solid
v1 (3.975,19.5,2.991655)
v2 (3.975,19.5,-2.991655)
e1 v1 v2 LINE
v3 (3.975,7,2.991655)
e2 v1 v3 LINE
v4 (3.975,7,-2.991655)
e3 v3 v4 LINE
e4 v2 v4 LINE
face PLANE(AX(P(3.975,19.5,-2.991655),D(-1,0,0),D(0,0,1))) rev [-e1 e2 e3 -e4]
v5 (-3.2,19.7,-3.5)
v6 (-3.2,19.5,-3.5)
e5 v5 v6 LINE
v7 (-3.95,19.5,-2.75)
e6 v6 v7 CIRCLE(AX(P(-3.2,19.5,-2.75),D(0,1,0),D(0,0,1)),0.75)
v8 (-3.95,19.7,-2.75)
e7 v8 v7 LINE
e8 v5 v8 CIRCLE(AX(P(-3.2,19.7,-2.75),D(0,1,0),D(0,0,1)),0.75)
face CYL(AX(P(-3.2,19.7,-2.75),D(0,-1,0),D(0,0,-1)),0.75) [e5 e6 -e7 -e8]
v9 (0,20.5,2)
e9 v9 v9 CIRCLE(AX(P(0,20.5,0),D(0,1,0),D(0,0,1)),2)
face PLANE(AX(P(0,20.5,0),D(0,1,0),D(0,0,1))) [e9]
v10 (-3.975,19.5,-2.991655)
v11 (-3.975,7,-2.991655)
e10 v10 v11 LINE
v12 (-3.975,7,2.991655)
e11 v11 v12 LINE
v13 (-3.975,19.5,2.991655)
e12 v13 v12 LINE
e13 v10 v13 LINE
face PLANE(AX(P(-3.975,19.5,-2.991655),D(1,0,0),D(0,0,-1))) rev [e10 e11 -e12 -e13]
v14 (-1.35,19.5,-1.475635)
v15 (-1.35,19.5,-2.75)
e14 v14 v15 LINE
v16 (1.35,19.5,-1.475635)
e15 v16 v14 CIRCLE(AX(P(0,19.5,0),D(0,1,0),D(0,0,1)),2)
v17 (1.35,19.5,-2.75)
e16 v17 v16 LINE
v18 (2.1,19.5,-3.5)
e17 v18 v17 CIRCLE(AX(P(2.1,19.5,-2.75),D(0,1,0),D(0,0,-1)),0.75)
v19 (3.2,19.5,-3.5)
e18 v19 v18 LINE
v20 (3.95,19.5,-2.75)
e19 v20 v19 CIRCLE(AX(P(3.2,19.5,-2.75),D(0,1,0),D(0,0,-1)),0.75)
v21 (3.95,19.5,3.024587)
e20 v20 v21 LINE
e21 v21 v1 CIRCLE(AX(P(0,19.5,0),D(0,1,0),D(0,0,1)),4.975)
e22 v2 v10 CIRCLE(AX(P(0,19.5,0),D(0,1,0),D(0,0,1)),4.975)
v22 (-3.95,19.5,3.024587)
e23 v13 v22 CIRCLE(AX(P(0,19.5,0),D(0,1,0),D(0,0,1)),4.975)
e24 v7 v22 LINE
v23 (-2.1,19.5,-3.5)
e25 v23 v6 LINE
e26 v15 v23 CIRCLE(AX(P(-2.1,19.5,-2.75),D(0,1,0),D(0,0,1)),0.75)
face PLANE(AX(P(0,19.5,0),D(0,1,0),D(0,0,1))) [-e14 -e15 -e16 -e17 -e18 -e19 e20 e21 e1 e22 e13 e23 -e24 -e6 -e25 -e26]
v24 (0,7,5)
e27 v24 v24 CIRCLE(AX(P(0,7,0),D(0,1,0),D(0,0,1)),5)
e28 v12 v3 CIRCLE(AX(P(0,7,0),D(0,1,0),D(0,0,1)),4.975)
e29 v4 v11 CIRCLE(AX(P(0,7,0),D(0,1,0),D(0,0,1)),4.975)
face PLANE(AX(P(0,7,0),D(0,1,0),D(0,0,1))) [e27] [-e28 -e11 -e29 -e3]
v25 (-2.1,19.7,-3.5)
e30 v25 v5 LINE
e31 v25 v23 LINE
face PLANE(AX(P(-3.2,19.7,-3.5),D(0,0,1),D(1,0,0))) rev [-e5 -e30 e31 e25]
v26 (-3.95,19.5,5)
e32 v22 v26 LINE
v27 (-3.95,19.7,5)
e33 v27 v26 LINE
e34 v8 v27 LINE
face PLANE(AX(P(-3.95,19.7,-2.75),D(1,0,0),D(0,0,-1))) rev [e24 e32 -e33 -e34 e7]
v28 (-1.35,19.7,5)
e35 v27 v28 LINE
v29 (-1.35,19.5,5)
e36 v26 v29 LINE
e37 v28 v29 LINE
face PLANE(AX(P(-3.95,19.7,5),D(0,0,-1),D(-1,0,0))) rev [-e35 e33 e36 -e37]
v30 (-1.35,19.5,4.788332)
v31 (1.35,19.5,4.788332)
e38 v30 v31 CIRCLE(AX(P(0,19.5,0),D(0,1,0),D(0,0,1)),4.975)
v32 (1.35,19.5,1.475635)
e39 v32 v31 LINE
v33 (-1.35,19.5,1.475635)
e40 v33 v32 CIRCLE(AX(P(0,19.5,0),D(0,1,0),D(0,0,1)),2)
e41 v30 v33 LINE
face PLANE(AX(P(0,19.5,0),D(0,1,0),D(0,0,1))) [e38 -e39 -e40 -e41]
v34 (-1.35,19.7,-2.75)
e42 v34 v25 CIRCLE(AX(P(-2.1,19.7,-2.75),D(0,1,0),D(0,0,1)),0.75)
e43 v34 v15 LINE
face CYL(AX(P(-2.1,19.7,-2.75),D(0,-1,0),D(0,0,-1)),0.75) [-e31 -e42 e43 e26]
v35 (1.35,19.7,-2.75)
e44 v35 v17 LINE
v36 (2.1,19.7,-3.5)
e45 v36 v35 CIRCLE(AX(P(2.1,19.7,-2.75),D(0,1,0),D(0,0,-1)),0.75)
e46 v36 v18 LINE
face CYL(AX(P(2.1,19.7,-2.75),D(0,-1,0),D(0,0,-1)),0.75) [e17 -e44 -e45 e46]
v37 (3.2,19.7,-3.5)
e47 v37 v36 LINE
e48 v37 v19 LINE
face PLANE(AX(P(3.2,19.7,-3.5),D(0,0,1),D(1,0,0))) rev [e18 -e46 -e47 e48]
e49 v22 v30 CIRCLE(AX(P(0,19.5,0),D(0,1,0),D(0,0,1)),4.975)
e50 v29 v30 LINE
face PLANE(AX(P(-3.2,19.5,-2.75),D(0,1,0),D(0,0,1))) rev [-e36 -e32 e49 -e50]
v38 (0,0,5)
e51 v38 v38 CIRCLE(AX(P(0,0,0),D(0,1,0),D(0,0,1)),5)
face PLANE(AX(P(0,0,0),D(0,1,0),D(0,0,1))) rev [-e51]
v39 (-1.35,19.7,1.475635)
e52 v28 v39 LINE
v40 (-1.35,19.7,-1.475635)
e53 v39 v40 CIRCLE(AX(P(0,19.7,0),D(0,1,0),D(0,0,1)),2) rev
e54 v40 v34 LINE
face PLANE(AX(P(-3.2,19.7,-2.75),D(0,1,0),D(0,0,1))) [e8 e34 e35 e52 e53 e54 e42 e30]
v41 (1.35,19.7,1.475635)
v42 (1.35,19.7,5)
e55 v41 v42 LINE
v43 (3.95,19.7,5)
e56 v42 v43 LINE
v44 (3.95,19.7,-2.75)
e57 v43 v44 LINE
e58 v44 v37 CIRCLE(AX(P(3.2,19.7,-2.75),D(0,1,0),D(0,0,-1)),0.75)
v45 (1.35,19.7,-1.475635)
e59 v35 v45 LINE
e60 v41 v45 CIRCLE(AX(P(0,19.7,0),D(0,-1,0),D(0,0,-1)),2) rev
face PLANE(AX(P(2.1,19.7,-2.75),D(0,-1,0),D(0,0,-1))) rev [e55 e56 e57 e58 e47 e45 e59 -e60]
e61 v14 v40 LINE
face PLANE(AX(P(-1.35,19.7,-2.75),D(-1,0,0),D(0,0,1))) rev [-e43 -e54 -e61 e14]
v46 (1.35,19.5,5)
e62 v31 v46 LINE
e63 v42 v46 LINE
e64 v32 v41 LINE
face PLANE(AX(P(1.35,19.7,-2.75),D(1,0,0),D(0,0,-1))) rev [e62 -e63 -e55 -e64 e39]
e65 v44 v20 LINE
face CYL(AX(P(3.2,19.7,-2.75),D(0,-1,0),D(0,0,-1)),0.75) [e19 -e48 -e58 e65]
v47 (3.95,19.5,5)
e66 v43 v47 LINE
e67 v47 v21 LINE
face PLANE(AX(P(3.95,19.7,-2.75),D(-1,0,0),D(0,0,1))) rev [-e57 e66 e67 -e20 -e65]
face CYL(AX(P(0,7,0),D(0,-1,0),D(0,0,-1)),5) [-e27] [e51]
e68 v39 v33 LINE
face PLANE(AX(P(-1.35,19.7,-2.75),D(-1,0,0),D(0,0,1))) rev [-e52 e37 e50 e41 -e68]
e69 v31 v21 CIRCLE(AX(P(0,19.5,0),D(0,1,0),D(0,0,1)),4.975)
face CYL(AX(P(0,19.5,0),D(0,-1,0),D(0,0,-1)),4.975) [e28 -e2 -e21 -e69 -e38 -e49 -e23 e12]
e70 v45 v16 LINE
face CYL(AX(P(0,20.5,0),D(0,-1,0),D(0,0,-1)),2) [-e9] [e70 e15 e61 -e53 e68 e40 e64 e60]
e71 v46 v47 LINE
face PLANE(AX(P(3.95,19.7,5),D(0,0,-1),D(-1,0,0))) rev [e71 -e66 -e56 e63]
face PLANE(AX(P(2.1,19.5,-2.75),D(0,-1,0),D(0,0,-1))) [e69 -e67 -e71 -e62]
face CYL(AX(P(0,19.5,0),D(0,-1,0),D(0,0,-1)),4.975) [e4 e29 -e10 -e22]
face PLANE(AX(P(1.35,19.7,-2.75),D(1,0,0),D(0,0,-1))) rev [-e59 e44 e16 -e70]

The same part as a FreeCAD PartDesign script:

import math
import FreeCAD as App
import Part
import Sketcher
from FreeCAD import Vector

doc = App.newDocument("Part")
body = doc.addObject("PartDesign::Body", "Body")

# Sketch on XZ plane
sketch1 = doc.addObject("Sketcher::SketchObject", "Sketch")
body.addObject(sketch1)
sketch1.AttachmentSupport = (doc.XZ_Plane, [""])
sketch1.MapMode = "FlatFace"
sketch1.addGeometry(Part.Circle(Vector(0, 0, 0), Vector(0, 0, 1), 5), False)
sketch1.addConstraint(Sketcher.Constraint("Coincident", 0, 3, -1, 1))
sketch1.addConstraint(Sketcher.Constraint("Diameter", 0, 10.0))
pad1 = doc.addObject("PartDesign::Pad", "Pad")
body.addObject(pad1)
pad1.Profile = sketch1
pad1.Length = 7
pad1.Reversed = True

# Sketch on XZ plane
sketch2 = doc.addObject("Sketcher::SketchObject", "Sketch001")
body.addObject(sketch2)
sketch2.AttachmentSupport = (doc.XZ_Plane, [""])
sketch2.MapMode = "FlatFace"
sketch2.AttachmentOffset = App.Placement(Vector(0, 0, -7), App.Rotation())
sketch2.addGeometry(Part.LineSegment(Vector(-3.975, -2.991655, 0), Vector(-3.975, 2.991655, 0)), False)
sketch2.addGeometry(Part.ArcOfCircle(Part.Circle(Vector(0, 0, 0), Vector(0, 0, 1), 4.975), math.radians(36.965764), math.radians(143.034236)), False)
sketch2.addGeometry(Part.LineSegment(Vector(3.975, 2.991655, 0), Vector(3.975, -2.991655, 0)), False)
sketch2.addGeometry(Part.ArcOfCircle(Part.Circle(Vector(0, 0, 0), Vector(0, 0, 1), 4.975), math.radians(-143.034236), math.radians(-36.965764)), False)
sketch2.addConstraint(Sketcher.Constraint("Coincident", 0, 2, 1, 2))
sketch2.addConstraint(Sketcher.Constraint("Coincident", 1, 1, 2, 1))
sketch2.addConstraint(Sketcher.Constraint("Coincident", 2, 2, 3, 2))
sketch2.addConstraint(Sketcher.Constraint("Coincident", 3, 1, 0, 1))
sketch2.addConstraint(Sketcher.Constraint("Vertical", 0))
sketch2.addConstraint(Sketcher.Constraint("Vertical", 2))
sketch2.addConstraint(Sketcher.Constraint("Coincident", 1, 3, -1, 1))
sketch2.addConstraint(Sketcher.Constraint("Coincident", 3, 3, -1, 1))
sketch2.addConstraint(Sketcher.Constraint("Equal", 1, 3))
sketch2.addConstraint(Sketcher.Constraint("Horizontal", 0, 2, 1, 1))
sketch2.addConstraint(Sketcher.Constraint("Radius", 1, 4.975))
sketch2.addConstraint(Sketcher.Constraint("DistanceX", 0, 2, 1, 1, 7.95))
pad2 = doc.addObject("PartDesign::Pad", "Pad001")
body.addObject(pad2)
pad2.Profile = sketch2
pad2.Length = 12.5
pad2.Reversed = True

# Sketch on XZ plane
sketch3 = doc.addObject("Sketcher::SketchObject", "Sketch002")
body.addObject(sketch3)
sketch3.AttachmentSupport = (doc.XZ_Plane, [""])
sketch3.MapMode = "FlatFace"
sketch3.AttachmentOffset = App.Placement(Vector(0, 0, -19.5), App.Rotation())
sketch3.addGeometry(Part.LineSegment(Vector(-2.1, -3.5, 0), Vector(-3.2, -3.5, 0)), False)
sketch3.addGeometry(Part.ArcOfCircle(Part.Circle(Vector(-3.2, -2.75, 0), Vector(0, 0, 1), 0.75), math.radians(180), math.radians(270)), False)
sketch3.addGeometry(Part.LineSegment(Vector(-3.95, -2.75, 0), Vector(-3.95, 5, 0)), False)
sketch3.addGeometry(Part.LineSegment(Vector(-3.95, 5, 0), Vector(-1.35, 5, 0)), False)
sketch3.addGeometry(Part.LineSegment(Vector(-1.35, 5, 0), Vector(-1.35, -2.75, 0)), False)
sketch3.addGeometry(Part.ArcOfCircle(Part.Circle(Vector(-2.1, -2.75, 0), Vector(0, 0, 1), 0.75), math.radians(-90), math.radians(0)), False)
sketch3.addGeometry(Part.LineSegment(Vector(1.35, 5, 0), Vector(3.95, 5, 0)), False)
sketch3.addGeometry(Part.LineSegment(Vector(3.95, 5, 0), Vector(3.95, -2.75, 0)), False)
sketch3.addGeometry(Part.ArcOfCircle(Part.Circle(Vector(3.2, -2.75, 0), Vector(0, 0, 1), 0.75), math.radians(-90), math.radians(0)), False)
sketch3.addGeometry(Part.LineSegment(Vector(3.2, -3.5, 0), Vector(2.1, -3.5, 0)), False)
sketch3.addGeometry(Part.ArcOfCircle(Part.Circle(Vector(2.1, -2.75, 0), Vector(0, 0, 1), 0.75), math.radians(180), math.radians(270)), False)
sketch3.addGeometry(Part.LineSegment(Vector(1.35, -2.75, 0), Vector(1.35, 5, 0)), False)
sketch3.addConstraint(Sketcher.Constraint("Tangent", 0, 2, 1, 2))
sketch3.addConstraint(Sketcher.Constraint("Tangent", 1, 1, 2, 1))
sketch3.addConstraint(Sketcher.Constraint("Coincident", 2, 2, 3, 1))
sketch3.addConstraint(Sketcher.Constraint("Coincident", 3, 2, 4, 1))
sketch3.addConstraint(Sketcher.Constraint("Tangent", 4, 2, 5, 2))
sketch3.addConstraint(Sketcher.Constraint("Tangent", 5, 1, 0, 1))
sketch3.addConstraint(Sketcher.Constraint("Coincident", 6, 2, 7, 1))
sketch3.addConstraint(Sketcher.Constraint("Tangent", 7, 2, 8, 2))
sketch3.addConstraint(Sketcher.Constraint("Tangent", 8, 1, 9, 1))
sketch3.addConstraint(Sketcher.Constraint("Tangent", 9, 2, 10, 2))
sketch3.addConstraint(Sketcher.Constraint("Tangent", 10, 1, 11, 1))
sketch3.addConstraint(Sketcher.Constraint("Coincident", 11, 2, 6, 1))
sketch3.addConstraint(Sketcher.Constraint("Horizontal", 0))
sketch3.addConstraint(Sketcher.Constraint("Vertical", 2))
sketch3.addConstraint(Sketcher.Constraint("Horizontal", 3))
sketch3.addConstraint(Sketcher.Constraint("Vertical", 4))
sketch3.addConstraint(Sketcher.Constraint("Horizontal", 6))
sketch3.addConstraint(Sketcher.Constraint("Vertical", 7))
sketch3.addConstraint(Sketcher.Constraint("Horizontal", 9))
sketch3.addConstraint(Sketcher.Constraint("Vertical", 11))
sketch3.addConstraint(Sketcher.Constraint("Equal", 1, 5))
sketch3.addConstraint(Sketcher.Constraint("Equal", 5, 8))
sketch3.addConstraint(Sketcher.Constraint("Equal", 8, 10))
sketch3.addConstraint(Sketcher.Constraint("Symmetric", 1, 3, 8, 3, -2))
sketch3.addConstraint(Sketcher.Constraint("Symmetric", 3, 2, 11, 2, -2))
sketch3.addConstraint(Sketcher.Constraint("Radius", 1, 0.75))
sketch3.addConstraint(Sketcher.Constraint("DistanceX", 0, 2, 0, 1, 1.1))
sketch3.addConstraint(Sketcher.Constraint("DistanceY", -1, 1, 2, 2, 5.0))
sketch3.addConstraint(Sketcher.Constraint("DistanceY", 2, 1, 2, 2, 7.75))
sketch3.addConstraint(Sketcher.Constraint("DistanceX", 1, 3, -1, 1, 3.2))
pad3 = doc.addObject("PartDesign::Pad", "Pad002")
body.addObject(pad3)
pad3.Profile = sketch3
pad3.Length = 0.2
pad3.Reversed = True

# Sketch on XZ plane
sketch4 = doc.addObject("Sketcher::SketchObject", "Sketch003")
body.addObject(sketch4)
sketch4.AttachmentSupport = (doc.XZ_Plane, [""])
sketch4.MapMode = "FlatFace"
sketch4.AttachmentOffset = App.Placement(Vector(0, 0, -19.5), App.Rotation())
sketch4.addGeometry(Part.Circle(Vector(0, 0, 0), Vector(0, 0, 1), 2), False)
sketch4.addConstraint(Sketcher.Constraint("Coincident", 0, 3, -1, 1))
sketch4.addConstraint(Sketcher.Constraint("Diameter", 0, 4.0))
pad4 = doc.addObject("PartDesign::Pad", "Pad003")
body.addObject(pad4)
pad4.Profile = sketch4
pad4.Length = 1
pad4.Reversed = True

doc.recompute()
